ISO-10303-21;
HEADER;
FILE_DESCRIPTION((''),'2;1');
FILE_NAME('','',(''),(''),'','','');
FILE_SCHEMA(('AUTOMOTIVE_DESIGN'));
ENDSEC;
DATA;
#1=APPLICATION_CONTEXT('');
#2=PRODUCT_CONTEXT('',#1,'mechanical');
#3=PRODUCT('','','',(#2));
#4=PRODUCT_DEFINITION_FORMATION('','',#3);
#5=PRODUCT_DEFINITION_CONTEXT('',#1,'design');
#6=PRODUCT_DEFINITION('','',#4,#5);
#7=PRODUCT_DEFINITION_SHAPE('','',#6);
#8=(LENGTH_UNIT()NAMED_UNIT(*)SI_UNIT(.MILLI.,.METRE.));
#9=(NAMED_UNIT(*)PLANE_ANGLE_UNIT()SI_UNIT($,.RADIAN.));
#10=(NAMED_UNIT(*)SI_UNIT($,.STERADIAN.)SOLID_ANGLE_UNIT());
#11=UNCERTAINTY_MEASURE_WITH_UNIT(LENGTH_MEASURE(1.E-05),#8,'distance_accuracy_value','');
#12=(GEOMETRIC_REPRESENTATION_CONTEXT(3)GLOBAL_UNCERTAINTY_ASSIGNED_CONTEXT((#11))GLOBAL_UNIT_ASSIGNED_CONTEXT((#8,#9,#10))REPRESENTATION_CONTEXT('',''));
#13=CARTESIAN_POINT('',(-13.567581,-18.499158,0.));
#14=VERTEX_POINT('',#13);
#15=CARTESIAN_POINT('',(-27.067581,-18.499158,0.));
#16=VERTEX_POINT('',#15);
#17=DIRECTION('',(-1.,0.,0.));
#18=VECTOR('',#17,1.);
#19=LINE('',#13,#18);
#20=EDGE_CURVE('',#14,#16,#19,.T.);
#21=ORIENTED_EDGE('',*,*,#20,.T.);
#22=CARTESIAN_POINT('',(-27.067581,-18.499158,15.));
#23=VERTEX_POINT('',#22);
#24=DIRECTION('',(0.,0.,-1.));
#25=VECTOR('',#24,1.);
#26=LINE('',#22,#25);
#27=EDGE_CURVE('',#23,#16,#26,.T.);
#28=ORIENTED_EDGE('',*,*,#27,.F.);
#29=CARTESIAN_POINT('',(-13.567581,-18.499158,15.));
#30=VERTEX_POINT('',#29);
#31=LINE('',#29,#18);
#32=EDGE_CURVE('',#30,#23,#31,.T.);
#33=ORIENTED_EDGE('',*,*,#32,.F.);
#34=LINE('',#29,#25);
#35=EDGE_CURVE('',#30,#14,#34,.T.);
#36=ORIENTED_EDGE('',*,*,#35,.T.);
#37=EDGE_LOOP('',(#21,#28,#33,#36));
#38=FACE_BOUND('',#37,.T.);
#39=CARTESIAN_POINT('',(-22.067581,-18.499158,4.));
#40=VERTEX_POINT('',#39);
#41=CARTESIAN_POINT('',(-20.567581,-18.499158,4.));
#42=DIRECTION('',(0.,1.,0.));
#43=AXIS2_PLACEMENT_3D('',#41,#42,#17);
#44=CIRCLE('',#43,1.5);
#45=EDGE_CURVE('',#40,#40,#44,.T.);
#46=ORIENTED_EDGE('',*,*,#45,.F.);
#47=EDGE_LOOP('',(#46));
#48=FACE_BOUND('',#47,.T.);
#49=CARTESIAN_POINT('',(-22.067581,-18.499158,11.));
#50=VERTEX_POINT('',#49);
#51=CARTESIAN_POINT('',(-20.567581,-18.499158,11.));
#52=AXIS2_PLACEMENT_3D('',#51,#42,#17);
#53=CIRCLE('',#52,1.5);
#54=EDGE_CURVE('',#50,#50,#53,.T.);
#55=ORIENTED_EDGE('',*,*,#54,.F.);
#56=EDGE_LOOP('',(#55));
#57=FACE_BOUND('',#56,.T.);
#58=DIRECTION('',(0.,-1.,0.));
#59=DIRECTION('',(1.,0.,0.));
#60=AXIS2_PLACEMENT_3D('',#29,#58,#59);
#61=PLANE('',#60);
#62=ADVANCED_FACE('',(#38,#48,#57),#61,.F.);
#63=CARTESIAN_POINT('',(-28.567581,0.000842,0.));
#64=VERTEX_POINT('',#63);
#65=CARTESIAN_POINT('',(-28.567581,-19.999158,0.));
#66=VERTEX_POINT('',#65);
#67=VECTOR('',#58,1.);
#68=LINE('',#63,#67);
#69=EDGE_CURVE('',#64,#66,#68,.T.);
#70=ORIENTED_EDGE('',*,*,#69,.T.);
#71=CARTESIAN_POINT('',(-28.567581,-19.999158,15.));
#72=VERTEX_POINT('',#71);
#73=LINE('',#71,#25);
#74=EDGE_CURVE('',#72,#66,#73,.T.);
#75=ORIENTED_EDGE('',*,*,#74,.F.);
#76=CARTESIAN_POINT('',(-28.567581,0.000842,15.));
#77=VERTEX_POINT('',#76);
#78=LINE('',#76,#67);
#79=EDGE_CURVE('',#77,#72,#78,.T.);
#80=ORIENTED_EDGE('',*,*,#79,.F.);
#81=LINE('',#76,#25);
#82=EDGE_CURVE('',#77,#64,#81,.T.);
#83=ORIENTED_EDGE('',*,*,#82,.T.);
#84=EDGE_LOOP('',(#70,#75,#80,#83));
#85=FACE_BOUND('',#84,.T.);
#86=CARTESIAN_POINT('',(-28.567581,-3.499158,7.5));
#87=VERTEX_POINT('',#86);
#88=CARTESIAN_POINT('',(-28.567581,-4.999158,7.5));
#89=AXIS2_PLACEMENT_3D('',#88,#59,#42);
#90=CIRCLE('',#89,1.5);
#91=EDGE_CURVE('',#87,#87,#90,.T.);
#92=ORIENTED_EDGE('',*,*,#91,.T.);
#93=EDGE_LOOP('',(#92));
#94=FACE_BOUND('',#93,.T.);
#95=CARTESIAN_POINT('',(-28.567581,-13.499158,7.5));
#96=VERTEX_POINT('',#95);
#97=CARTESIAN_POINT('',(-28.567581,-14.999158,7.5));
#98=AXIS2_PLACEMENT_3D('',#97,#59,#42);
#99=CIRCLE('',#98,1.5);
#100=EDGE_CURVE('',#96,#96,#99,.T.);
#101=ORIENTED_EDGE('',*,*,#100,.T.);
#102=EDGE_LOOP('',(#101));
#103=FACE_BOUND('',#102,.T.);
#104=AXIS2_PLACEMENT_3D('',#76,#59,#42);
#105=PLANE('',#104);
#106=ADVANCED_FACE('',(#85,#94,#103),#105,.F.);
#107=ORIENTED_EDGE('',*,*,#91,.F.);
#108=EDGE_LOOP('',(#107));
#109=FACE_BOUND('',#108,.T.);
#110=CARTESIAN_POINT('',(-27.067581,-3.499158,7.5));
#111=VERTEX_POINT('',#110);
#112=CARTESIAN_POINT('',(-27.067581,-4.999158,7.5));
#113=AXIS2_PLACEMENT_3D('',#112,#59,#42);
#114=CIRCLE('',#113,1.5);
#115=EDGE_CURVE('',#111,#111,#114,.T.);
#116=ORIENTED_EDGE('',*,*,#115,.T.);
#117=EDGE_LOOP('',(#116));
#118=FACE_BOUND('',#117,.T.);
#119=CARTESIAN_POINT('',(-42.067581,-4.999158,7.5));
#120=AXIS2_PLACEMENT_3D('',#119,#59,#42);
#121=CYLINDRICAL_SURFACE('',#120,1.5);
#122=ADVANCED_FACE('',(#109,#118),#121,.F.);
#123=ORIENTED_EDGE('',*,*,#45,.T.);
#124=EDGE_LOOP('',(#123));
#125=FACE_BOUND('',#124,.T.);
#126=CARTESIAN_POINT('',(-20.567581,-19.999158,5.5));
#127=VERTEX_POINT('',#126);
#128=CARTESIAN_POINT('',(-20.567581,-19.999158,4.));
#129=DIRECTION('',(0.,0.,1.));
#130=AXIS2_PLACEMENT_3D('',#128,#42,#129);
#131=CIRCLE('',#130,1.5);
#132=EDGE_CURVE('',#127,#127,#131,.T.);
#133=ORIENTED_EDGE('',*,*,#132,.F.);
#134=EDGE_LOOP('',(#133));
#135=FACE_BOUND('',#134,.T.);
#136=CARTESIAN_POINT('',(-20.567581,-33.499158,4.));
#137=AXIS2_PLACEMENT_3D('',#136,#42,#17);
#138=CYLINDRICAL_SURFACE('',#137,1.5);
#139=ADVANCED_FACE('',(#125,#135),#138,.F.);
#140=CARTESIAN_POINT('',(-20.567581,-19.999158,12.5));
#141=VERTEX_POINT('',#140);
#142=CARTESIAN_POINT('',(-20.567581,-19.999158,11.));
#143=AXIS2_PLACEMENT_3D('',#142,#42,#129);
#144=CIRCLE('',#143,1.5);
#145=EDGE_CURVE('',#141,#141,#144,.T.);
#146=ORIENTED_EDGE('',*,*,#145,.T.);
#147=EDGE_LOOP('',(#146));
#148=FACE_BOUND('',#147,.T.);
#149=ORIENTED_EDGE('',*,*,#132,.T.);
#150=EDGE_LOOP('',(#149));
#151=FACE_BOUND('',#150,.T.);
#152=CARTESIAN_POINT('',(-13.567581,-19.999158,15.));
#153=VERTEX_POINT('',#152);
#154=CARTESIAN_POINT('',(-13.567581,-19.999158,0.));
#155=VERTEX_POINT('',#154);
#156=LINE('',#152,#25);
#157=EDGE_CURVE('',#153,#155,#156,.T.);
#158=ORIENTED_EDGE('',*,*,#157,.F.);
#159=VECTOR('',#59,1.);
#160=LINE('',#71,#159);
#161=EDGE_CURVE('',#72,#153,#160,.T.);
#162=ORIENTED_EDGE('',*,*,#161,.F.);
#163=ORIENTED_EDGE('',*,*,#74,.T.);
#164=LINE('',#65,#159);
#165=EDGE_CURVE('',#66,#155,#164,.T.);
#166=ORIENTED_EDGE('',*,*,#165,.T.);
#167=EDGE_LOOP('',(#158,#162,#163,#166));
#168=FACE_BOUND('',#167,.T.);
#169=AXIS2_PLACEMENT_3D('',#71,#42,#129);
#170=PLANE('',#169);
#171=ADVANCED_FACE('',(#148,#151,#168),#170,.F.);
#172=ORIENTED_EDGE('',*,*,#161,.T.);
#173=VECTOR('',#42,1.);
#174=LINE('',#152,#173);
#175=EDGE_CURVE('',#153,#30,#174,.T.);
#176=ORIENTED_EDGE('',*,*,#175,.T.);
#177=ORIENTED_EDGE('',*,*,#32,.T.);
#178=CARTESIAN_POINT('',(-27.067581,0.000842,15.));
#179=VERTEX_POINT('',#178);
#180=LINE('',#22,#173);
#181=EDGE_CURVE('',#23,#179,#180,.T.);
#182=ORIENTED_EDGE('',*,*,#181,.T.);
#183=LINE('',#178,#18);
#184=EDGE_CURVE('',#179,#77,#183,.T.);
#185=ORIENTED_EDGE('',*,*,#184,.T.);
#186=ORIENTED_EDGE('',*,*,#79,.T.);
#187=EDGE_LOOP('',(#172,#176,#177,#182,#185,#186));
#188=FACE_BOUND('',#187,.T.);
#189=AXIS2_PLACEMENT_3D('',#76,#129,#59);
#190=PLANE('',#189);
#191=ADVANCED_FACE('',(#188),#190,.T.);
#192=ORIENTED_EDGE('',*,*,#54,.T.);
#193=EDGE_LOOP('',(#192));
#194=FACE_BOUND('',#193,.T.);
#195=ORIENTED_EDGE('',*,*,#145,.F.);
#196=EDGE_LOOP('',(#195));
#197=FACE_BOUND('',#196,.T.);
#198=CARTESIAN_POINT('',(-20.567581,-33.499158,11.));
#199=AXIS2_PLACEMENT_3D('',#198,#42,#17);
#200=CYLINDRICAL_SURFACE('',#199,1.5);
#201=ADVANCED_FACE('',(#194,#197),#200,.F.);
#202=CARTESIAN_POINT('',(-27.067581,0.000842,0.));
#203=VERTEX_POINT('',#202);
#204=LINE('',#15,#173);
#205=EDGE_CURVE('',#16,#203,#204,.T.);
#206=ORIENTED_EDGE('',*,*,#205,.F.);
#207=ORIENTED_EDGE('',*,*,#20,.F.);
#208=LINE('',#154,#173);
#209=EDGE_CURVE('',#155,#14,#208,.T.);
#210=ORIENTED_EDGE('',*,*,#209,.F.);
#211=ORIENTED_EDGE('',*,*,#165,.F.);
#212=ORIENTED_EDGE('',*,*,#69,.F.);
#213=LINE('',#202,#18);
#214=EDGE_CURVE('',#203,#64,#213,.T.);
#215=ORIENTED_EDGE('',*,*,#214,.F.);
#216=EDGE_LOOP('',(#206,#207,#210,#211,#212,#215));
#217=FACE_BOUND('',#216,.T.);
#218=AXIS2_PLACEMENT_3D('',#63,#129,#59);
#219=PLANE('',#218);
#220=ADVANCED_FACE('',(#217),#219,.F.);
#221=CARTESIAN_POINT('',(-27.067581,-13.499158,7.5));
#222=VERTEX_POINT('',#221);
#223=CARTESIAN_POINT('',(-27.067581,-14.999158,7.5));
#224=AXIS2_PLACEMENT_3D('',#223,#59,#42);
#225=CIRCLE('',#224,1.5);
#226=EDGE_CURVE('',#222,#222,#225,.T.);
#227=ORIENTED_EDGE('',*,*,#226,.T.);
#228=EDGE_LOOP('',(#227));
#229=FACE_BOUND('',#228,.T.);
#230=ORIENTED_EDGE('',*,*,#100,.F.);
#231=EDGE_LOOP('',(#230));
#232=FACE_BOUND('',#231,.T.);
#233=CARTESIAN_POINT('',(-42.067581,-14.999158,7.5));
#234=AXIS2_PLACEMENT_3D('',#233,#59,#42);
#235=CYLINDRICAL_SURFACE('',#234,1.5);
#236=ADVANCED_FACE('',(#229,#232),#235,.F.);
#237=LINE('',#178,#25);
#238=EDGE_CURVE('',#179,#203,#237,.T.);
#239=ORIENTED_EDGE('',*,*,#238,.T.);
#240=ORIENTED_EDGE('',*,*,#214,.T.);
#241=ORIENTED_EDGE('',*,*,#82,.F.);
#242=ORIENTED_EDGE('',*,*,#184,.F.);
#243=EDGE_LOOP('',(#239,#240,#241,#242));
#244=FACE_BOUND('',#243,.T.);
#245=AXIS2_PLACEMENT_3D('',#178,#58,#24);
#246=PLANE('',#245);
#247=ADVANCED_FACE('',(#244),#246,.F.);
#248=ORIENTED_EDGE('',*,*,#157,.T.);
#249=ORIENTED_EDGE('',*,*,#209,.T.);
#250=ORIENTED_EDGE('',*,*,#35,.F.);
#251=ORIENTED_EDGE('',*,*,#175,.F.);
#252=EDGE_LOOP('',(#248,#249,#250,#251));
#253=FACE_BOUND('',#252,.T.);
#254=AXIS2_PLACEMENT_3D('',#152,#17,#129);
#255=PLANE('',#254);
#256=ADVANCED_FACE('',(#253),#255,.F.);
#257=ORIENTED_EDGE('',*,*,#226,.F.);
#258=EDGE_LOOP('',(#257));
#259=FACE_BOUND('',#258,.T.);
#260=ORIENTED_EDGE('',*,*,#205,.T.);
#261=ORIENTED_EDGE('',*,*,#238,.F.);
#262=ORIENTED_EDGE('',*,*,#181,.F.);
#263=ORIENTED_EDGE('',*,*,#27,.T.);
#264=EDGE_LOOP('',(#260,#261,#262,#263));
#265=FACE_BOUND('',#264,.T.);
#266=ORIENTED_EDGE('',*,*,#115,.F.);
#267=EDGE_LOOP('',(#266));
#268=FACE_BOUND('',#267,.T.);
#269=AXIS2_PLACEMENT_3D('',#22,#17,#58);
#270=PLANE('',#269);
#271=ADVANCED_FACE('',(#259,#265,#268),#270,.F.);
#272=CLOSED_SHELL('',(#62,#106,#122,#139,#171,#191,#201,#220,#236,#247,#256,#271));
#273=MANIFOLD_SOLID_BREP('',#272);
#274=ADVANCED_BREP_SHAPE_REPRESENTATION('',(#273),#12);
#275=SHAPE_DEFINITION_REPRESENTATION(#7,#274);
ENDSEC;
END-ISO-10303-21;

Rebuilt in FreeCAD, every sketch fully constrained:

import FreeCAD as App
import Part
import Sketcher

V = App.Vector

doc = App.newDocument("Part")
body = doc.addObject("PartDesign::Body", "Body")

# Sketch on XY plane
sketch1 = body.newObject("Sketcher::SketchObject", "Sketch")
sketch1.AttachmentSupport = (doc.getObject("XY_Plane"), [""])
sketch1.MapMode = "FlatFace"
sketch1.addGeometry(Part.LineSegment(V(-28.6, 0, 0), V(-28.6, -20, 0)), False)
sketch1.addGeometry(Part.LineSegment(V(-28.6, -20, 0), V(-13.6, -20, 0)), False)
sketch1.addGeometry(Part.LineSegment(V(-13.6, -20, 0), V(-13.6, -18.5, 0)), False)
sketch1.addGeometry(Part.LineSegment(V(-13.6, -18.5, 0), V(-27.1, -18.5, 0)), False)
sketch1.addGeometry(Part.LineSegment(V(-27.1, -18.5, 0), V(-27.1, 0, 0)), False)
sketch1.addGeometry(Part.LineSegment(V(-27.1, 0, 0), V(-28.6, 0, 0)), False)
sketch1.addConstraint(Sketcher.Constraint("Coincident", 0, 2, 1, 1))
sketch1.addConstraint(Sketcher.Constraint("Coincident", 1, 2, 2, 1))
sketch1.addConstraint(Sketcher.Constraint("Coincident", 2, 2, 3, 1))
sketch1.addConstraint(Sketcher.Constraint("Coincident", 3, 2, 4, 1))
sketch1.addConstraint(Sketcher.Constraint("Coincident", 4, 2, 5, 1))
sketch1.addConstraint(Sketcher.Constraint("Coincident", 5, 2, 0, 1))
sketch1.addConstraint(Sketcher.Constraint("Vertical", 0))
sketch1.addConstraint(Sketcher.Constraint("Horizontal", 1))
sketch1.addConstraint(Sketcher.Constraint("Vertical", 2))
sketch1.addConstraint(Sketcher.Constraint("Horizontal", 3))
sketch1.addConstraint(Sketcher.Constraint("Vertical", 4))
sketch1.addConstraint(Sketcher.Constraint("Horizontal", 5))
sketch1.addConstraint(Sketcher.Constraint("Equal", 5, 2))
sketch1.addConstraint(Sketcher.Constraint("DistanceX", 1, 1, 1, 2, 15.0))
sketch1.addConstraint(Sketcher.Constraint("DistanceY", 0, 2, 0, 1, 20.0))
sketch1.addConstraint(Sketcher.Constraint("DistanceX", 3, 2, 3, 1, 13.5))
sketch1.addConstraint(Sketcher.Constraint("DistanceX", 0, 2, -1, 1, 28.567581))
sketch1.addConstraint(Sketcher.Constraint("DistanceY", 0, 2, -1, 1, 19.999158))
pad1 = body.newObject("PartDesign::Pad", "Pad")
pad1.Profile = sketch1
pad1.Length = 15

# Sketch on XZ plane
sketch2 = body.newObject("Sketcher::SketchObject", "Sketch001")
sketch2.AttachmentSupport = (doc.getObject("XZ_Plane"), [""])
sketch2.MapMode = "FlatFace"
sketch2.AttachmentOffset = App.Placement(V(0, 0, 18.499158), App.Rotation())
sketch2.addGeometry(Part.Circle(V(-20.6, 4, 0), V(0, 0, 1), 1.5), False)
sketch2.addGeometry(Part.Circle(V(-20.6, 11, 0), V(0, 0, 1), 1.5), False)
sketch2.addConstraint(Sketcher.Constraint("Equal", 0, 1))
sketch2.addConstraint(Sketcher.Constraint("Vertical", 0, 3, 1, 3))
sketch2.addConstraint(Sketcher.Constraint("Diameter", 0, 3.0))
sketch2.addConstraint(Sketcher.Constraint("DistanceY", -1, 1, 0, 3, 4.0))
sketch2.addConstraint(Sketcher.Constraint("DistanceY", -1, 1, 1, 3, 11.0))
sketch2.addConstraint(Sketcher.Constraint("DistanceX", 0, 3, -1, 1, 20.567581))
pocket1 = body.newObject("PartDesign::Pocket", "Pocket")
pocket1.Profile = sketch2
pocket1.Length = 15
pocket1.Reversed = True

# Sketch on YZ plane
sketch3 = body.newObject("Sketcher::SketchObject", "Sketch002")
sketch3.AttachmentSupport = (doc.getObject("YZ_Plane"), [""])
sketch3.MapMode = "FlatFace"
sketch3.AttachmentOffset = App.Placement(V(0, 0, -27.067581), App.Rotation())
sketch3.addGeometry(Part.Circle(V(-5, 7.5, 0), V(0, 0, 1), 1.5), False)
sketch3.addGeometry(Part.Circle(V(-15, 7.5, 0), V(0, 0, 1), 1.5), False)
sketch3.addConstraint(Sketcher.Constraint("Equal", 0, 1))
sketch3.addConstraint(Sketcher.Constraint("Horizontal", 0, 3, 1, 3))
sketch3.addConstraint(Sketcher.Constraint("Diameter", 0, 3.0))
sketch3.addConstraint(Sketcher.Constraint("DistanceX", 1, 3, 0, 3, 10.0))
sketch3.addConstraint(Sketcher.Constraint("DistanceY", -1, 1, 0, 3, 7.5))
sketch3.addConstraint(Sketcher.Constraint("DistanceX", 0, 3, -1, 1, 4.999158))
pocket2 = body.newObject("PartDesign::Pocket", "Pocket001")
pocket2.Profile = sketch3
pocket2.Length = 15

doc.recompute()
